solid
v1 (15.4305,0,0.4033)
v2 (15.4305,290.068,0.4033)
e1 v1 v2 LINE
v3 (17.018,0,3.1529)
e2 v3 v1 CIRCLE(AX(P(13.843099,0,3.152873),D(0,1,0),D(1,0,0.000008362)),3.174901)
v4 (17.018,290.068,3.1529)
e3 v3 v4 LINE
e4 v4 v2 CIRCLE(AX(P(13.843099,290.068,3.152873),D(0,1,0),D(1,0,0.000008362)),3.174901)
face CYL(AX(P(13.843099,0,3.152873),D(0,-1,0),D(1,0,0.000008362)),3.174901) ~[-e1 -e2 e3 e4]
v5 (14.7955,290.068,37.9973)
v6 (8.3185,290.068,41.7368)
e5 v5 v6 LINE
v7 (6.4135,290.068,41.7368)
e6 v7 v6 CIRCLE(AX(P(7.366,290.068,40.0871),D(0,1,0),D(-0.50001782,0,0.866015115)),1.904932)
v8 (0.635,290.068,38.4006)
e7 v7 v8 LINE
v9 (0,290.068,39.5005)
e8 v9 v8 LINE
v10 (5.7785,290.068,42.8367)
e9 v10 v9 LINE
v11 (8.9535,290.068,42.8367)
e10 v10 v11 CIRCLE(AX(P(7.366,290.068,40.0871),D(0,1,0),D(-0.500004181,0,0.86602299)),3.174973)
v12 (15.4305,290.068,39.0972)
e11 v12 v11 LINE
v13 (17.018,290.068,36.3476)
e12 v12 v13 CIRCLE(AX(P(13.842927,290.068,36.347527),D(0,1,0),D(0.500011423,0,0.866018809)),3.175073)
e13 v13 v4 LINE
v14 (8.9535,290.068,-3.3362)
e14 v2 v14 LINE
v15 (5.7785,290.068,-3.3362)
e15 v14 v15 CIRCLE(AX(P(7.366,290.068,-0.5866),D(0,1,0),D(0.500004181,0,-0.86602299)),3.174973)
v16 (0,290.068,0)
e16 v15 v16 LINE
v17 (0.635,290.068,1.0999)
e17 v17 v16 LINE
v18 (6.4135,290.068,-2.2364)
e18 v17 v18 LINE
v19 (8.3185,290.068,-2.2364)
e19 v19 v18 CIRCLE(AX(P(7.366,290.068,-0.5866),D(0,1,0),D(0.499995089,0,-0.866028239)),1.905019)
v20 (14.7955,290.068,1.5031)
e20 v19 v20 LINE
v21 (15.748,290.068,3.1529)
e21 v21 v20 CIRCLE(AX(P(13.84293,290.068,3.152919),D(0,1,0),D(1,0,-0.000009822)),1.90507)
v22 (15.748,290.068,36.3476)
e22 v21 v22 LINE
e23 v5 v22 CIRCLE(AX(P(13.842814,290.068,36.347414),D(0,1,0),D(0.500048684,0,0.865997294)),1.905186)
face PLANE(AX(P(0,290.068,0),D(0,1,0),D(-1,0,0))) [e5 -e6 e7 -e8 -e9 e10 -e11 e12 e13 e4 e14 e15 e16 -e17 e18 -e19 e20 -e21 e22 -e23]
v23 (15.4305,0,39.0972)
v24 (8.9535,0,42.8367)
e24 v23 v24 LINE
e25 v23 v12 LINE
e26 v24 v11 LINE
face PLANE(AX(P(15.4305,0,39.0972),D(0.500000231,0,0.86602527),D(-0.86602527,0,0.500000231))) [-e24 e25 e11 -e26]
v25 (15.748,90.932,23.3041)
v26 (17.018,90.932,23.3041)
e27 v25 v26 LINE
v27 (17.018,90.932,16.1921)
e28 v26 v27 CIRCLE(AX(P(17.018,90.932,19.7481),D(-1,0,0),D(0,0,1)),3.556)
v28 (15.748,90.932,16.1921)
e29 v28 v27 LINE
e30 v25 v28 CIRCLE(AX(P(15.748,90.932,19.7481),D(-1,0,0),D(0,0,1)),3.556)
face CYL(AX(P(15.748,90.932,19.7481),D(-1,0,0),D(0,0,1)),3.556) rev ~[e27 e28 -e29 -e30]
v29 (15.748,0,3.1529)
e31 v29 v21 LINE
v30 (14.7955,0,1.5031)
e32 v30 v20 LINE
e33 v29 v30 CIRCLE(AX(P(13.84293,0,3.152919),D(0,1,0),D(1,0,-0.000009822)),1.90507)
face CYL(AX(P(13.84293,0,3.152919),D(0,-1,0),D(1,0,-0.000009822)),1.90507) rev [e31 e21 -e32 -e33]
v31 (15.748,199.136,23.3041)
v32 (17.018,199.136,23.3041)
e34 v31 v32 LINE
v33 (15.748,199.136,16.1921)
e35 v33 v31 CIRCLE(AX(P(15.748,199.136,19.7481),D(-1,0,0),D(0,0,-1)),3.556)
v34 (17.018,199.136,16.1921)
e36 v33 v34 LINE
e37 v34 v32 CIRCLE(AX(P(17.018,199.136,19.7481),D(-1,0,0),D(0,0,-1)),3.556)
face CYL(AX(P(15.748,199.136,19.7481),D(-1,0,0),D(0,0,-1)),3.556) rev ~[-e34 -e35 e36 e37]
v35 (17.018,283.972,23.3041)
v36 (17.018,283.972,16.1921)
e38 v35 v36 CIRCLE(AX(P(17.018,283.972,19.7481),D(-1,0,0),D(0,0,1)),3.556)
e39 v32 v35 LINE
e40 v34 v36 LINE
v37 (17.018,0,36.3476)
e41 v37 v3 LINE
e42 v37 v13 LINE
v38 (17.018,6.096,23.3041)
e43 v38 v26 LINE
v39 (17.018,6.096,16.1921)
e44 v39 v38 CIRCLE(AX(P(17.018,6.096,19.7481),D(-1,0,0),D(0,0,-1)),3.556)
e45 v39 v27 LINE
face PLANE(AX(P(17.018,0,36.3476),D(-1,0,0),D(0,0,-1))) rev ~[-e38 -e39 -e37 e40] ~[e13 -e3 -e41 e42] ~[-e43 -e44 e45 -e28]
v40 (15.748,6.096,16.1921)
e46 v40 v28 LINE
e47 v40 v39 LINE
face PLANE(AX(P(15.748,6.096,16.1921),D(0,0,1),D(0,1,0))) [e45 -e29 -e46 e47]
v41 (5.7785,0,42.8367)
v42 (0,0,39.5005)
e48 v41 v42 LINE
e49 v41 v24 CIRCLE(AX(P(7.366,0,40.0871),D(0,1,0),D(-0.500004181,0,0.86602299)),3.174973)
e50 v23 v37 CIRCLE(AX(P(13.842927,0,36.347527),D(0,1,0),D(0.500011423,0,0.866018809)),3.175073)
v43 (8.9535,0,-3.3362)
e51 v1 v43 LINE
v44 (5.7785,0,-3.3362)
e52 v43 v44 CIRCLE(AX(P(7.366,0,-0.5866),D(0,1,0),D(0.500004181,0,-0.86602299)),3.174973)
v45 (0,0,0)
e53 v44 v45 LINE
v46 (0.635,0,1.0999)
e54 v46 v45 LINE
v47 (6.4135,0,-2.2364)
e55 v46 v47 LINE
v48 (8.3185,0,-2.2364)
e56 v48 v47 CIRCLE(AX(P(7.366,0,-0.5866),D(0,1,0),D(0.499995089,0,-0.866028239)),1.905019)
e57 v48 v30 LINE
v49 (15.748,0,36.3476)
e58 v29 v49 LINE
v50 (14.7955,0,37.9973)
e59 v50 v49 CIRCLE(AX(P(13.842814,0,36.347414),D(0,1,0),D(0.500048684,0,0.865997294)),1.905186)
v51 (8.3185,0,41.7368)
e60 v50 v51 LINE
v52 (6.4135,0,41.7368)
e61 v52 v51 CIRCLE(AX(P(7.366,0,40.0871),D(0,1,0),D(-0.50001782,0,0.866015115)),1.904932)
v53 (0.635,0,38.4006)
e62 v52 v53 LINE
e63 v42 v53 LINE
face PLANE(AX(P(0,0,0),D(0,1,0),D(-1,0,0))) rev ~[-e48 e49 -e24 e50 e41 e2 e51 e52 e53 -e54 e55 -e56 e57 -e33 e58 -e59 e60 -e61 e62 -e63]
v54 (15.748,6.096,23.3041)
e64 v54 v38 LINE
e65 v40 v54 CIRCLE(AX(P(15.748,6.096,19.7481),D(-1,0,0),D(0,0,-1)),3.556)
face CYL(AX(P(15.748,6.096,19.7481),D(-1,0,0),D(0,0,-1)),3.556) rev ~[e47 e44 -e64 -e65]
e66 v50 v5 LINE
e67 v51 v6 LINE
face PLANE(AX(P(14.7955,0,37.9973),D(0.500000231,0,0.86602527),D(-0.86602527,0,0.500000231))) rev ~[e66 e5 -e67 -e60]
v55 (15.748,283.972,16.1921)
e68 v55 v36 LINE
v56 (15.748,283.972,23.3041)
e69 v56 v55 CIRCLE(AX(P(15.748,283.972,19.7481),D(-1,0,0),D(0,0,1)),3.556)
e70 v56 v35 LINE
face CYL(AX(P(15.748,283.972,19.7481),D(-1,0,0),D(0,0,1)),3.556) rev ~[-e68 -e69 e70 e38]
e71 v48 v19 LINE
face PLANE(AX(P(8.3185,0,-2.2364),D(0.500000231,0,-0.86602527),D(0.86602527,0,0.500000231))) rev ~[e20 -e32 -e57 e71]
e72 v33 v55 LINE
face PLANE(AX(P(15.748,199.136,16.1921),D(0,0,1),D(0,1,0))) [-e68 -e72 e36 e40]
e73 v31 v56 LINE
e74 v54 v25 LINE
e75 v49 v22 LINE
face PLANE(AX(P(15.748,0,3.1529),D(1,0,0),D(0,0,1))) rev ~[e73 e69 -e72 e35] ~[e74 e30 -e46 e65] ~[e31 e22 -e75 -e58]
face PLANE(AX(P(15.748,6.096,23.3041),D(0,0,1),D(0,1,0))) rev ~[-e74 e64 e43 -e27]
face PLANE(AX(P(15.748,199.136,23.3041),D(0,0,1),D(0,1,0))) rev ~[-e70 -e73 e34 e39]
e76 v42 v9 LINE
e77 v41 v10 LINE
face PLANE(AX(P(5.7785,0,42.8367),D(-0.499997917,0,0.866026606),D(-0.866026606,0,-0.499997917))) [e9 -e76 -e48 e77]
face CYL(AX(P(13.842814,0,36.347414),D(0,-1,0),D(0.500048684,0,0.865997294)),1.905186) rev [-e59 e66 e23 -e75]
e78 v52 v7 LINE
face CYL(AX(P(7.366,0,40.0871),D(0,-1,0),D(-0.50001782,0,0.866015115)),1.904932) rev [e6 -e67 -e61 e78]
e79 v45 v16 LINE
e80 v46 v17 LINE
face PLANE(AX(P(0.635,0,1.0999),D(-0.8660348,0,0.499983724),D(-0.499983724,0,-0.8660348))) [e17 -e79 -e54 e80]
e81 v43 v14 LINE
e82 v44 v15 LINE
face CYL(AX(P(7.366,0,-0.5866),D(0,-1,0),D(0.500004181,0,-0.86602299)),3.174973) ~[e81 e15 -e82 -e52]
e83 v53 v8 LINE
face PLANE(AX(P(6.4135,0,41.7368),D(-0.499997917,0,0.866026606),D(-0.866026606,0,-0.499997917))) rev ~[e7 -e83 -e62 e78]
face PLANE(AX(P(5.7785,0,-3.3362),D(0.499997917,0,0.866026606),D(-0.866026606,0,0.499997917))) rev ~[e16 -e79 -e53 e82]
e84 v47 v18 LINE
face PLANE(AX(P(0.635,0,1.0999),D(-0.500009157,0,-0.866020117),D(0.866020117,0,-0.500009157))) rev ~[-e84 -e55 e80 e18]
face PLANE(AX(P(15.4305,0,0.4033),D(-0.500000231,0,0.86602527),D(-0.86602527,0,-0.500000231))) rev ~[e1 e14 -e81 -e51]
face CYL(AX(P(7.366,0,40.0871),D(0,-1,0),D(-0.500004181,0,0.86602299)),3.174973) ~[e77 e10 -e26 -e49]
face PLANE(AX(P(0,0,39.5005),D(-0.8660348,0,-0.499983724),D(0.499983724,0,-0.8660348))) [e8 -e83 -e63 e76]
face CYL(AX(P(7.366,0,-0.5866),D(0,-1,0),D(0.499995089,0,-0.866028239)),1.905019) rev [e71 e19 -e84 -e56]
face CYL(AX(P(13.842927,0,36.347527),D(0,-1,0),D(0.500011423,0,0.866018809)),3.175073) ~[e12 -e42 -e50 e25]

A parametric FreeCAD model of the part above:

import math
import FreeCAD as App
import Part
import Sketcher
Q = App.Units.Quantity

doc = App.newDocument("Part")
body = doc.addObject("PartDesign::Body", "Body")

# Sketch on XZ plane
sketch1 = doc.addObject("Sketcher::SketchObject", "Sketch")
body.addObject(sketch1)
sketch1.AttachmentSupport = (doc.XZ_Plane, [""])
sketch1.MapMode = "FlatFace"
sketch1.addGeometry(Part.ArcOfCircle(Part.Circle(App.Vector(13.8, 36.3, 0), App.Vector(0, 0, 1), 3.2), math.radians(0), math.radians(60)), False)
sketch1.addGeometry(Part.LineSegment(App.Vector(17, 36.3, 0), App.Vector(17, 3.2, 0)), False)
sketch1.addGeometry(Part.ArcOfCircle(Part.Circle(App.Vector(13.8, 3.2, 0), App.Vector(0, 0, 1), 3.2), math.radians(-60), math.radians(0)), False)
sketch1.addGeometry(Part.LineSegment(App.Vector(15.4, 0.4, 0), App.Vector(9, -3.3, 0)), False)
sketch1.addGeometry(Part.ArcOfCircle(Part.Circle(App.Vector(7.4, -0.6, 0), App.Vector(0, 0, 1), 3.2), math.radians(-120), math.radians(-60)), False)
sketch1.addGeometry(Part.LineSegment(App.Vector(5.8, -3.3, 0), App.Vector(0, 0, 0)), False)
sketch1.addGeometry(Part.LineSegment(App.Vector(0, 0, 0), App.Vector(0.6, 1.1, 0)), False)
sketch1.addGeometry(Part.LineSegment(App.Vector(0.6, 1.1, 0), App.Vector(6.4, -2.2, 0)), False)
sketch1.addGeometry(Part.ArcOfCircle(Part.Circle(App.Vector(7.4, -0.6, 0), App.Vector(0, 0, 1), 1.9), math.radians(-120), math.radians(-60)), False)
sketch1.addGeometry(Part.LineSegment(App.Vector(8.3, -2.2, 0), App.Vector(14.8, 1.5, 0)), False)
sketch1.addGeometry(Part.ArcOfCircle(Part.Circle(App.Vector(13.8, 3.2, 0), App.Vector(0, 0, 1), 1.9), math.radians(-60), math.radians(0)), False)
sketch1.addGeometry(Part.LineSegment(App.Vector(15.7, 3.2, 0), App.Vector(15.7, 36.3, 0)), False)
sketch1.addGeometry(Part.ArcOfCircle(Part.Circle(App.Vector(13.8, 36.3, 0), App.Vector(0, 0, 1), 1.9), math.radians(0), math.radians(60)), False)
sketch1.addGeometry(Part.LineSegment(App.Vector(14.8, 38, 0), App.Vector(8.3, 41.7, 0)), False)
sketch1.addGeometry(Part.ArcOfCircle(Part.Circle(App.Vector(7.4, 40.1, 0), App.Vector(0, 0, 1), 1.9), math.radians(60), math.radians(120)), False)
sketch1.addGeometry(Part.LineSegment(App.Vector(6.4, 41.7, 0), App.Vector(0.6, 38.4, 0)), False)
sketch1.addGeometry(Part.LineSegment(App.Vector(0.6, 38.4, 0), App.Vector(0, 39.5, 0)), False)
sketch1.addGeometry(Part.LineSegment(App.Vector(0, 39.5, 0), App.Vector(5.8, 42.8, 0)), False)
sketch1.addGeometry(Part.ArcOfCircle(Part.Circle(App.Vector(7.4, 40.1, 0), App.Vector(0, 0, 1), 3.2), math.radians(60), math.radians(120)), False)
sketch1.addGeometry(Part.LineSegment(App.Vector(9, 42.8, 0), App.Vector(15.4, 39.1, 0)), False)
sketch1.addConstraint(Sketcher.Constraint("Tangent", 0, 1, 1, 1))
sketch1.addConstraint(Sketcher.Constraint("Tangent", 1, 2, 2, 2))
sketch1.addConstraint(Sketcher.Constraint("Tangent", 2, 1, 3, 1))
sketch1.addConstraint(Sketcher.Constraint("Tangent", 3, 2, 4, 2))
sketch1.addConstraint(Sketcher.Constraint("Tangent", 4, 1, 5, 1))
sketch1.addConstraint(Sketcher.Constraint("Coincident", 5, 2, 6, 1))
sketch1.addConstraint(Sketcher.Constraint("Coincident", 6, 2, 7, 1))
sketch1.addConstraint(Sketcher.Constraint("Tangent", 7, 2, 8, 1))
sketch1.addConstraint(Sketcher.Constraint("Tangent", 8, 2, 9, 1))
sketch1.addConstraint(Sketcher.Constraint("Tangent", 9, 2, 10, 1))
sketch1.addConstraint(Sketcher.Constraint("Tangent", 10, 2, 11, 1))
sketch1.addConstraint(Sketcher.Constraint("Tangent", 11, 2, 12, 1))
sketch1.addConstraint(Sketcher.Constraint("Tangent", 12, 2, 13, 1))
sketch1.addConstraint(Sketcher.Constraint("Tangent", 13, 2, 14, 1))
sketch1.addConstraint(Sketcher.Constraint("Tangent", 14, 2, 15, 1))
sketch1.addConstraint(Sketcher.Constraint("Coincident", 15, 2, 16, 1))
sketch1.addConstraint(Sketcher.Constraint("Coincident", 16, 2, 17, 1))
sketch1.addConstraint(Sketcher.Constraint("Tangent", 17, 2, 18, 2))
sketch1.addConstraint(Sketcher.Constraint("Tangent", 18, 1, 19, 1))
sketch1.addConstraint(Sketcher.Constraint("Tangent", 19, 2, 0, 2))
sketch1.addConstraint(Sketcher.Constraint("Vertical", 1))
sketch1.addConstraint(Sketcher.Constraint("Vertical", 11))
sketch1.addConstraint(Sketcher.Constraint("Coincident", 5, 2, -1, 1))
sketch1.addConstraint(Sketcher.Constraint("Coincident", 8, 3, 4, 3))
sketch1.addConstraint(Sketcher.Constraint("Coincident", 10, 3, 2, 3))
sketch1.addConstraint(Sketcher.Constraint("Coincident", 12, 3, 0, 3))
sketch1.addConstraint(Sketcher.Constraint("Coincident", 18, 3, 14, 3))
sketch1.addConstraint(Sketcher.Constraint("Equal", 0, 2))
sketch1.addConstraint(Sketcher.Constraint("Equal", 2, 4))
sketch1.addConstraint(Sketcher.Constraint("Equal", 8, 10))
sketch1.addConstraint(Sketcher.Constraint("Equal", 12, 14))
sketch1.addConstraint(Sketcher.Constraint("Equal", 4, 18))
sketch1.addConstraint(Sketcher.Constraint("PointOnObject", 16, 2, -2))
sketch1.addConstraint(Sketcher.Constraint("Perpendicular", 5, 6))
sketch1.addConstraint(Sketcher.Constraint("Perpendicular", 6, 7))
sketch1.addConstraint(Sketcher.Constraint("Parallel", 7, 13))
sketch1.addConstraint(Sketcher.Constraint("Parallel", 9, 15))
sketch1.addConstraint(Sketcher.Constraint("Perpendicular", 15, 16))
sketch1.addConstraint(Sketcher.Constraint("Perpendicular", 16, 17))
sketch1.addConstraint(Sketcher.Constraint("Horizontal", 3, 2, 4, 1))
sketch1.addConstraint(Sketcher.Constraint("Vertical", 8, 3, 14, 3))
sketch1.addConstraint(Sketcher.Constraint("Radius", 0, Q("0.125 in")))
sketch1.addConstraint(Sketcher.Constraint("Distance", 6, Q("0.05 in")))
sketch1.addConstraint(Sketcher.Constraint("DistanceX", -1, 1, 0, 1, Q("0.67 in")))
sketch1.addConstraint(Sketcher.Constraint("DistanceX", 14, 3, 0, 1, Q("0.38 in")))
sketch1.addConstraint(Sketcher.Constraint("Angle", 3, Q("-150 deg")))
sketch1.addConstraint(Sketcher.Constraint("DistanceY", -1, 1, 0, 3, Q("1.431 in")))
pad1 = doc.addObject("PartDesign::Pad", "Pad")
body.addObject(pad1)
pad1.Profile = sketch1
pad1.Length = Q("11.42 in")
pad1.Reversed = True

# Sketch on YZ plane
sketch2 = doc.addObject("Sketcher::SketchObject", "Sketch001")
body.addObject(sketch2)
sketch2.AttachmentSupport = (doc.YZ_Plane, [""])
sketch2.MapMode = "FlatFace"
sketch2.AttachmentOffset = App.Placement(App.Vector(0, 0, 0.62 * 25.4), App.Rotation())
sketch2.addGeometry(Part.LineSegment(App.Vector(90.9, 16.2, 0), App.Vector(6.1, 16.2, 0)), False)
sketch2.addGeometry(Part.ArcOfCircle(Part.Circle(App.Vector(6.1, 19.7, 0), App.Vector(0, 0, 1), 3.6), math.radians(90), math.radians(270)), False)
sketch2.addGeometry(Part.LineSegment(App.Vector(6.1, 23.3, 0), App.Vector(90.9, 23.3, 0)), False)
sketch2.addGeometry(Part.ArcOfCircle(Part.Circle(App.Vector(90.9, 19.7, 0), App.Vector(0, 0, 1), 3.6), math.radians(-90), math.radians(90)), False)
sketch2.addGeometry(Part.LineSegment(App.Vector(284, 16.2, 0), App.Vector(199.1, 16.2, 0)), False)
sketch2.addGeometry(Part.ArcOfCircle(Part.Circle(App.Vector(199.1, 19.7, 0), App.Vector(0, 0, 1), 3.6), math.radians(90), math.radians(270)), False)
sketch2.addGeometry(Part.LineSegment(App.Vector(199.1, 23.3, 0), App.Vector(284, 23.3, 0)), False)
sketch2.addGeometry(Part.ArcOfCircle(Part.Circle(App.Vector(284, 19.7, 0), App.Vector(0, 0, 1), 3.6), math.radians(-90), math.radians(90)), False)
sketch2.addConstraint(Sketcher.Constraint("Tangent", 0, 2, 1, 2))
sketch2.addConstraint(Sketcher.Constraint("Tangent", 1, 1, 2, 1))
sketch2.addConstraint(Sketcher.Constraint("Tangent", 2, 2, 3, 2))
sketch2.addConstraint(Sketcher.Constraint("Tangent", 3, 1, 0, 1))
sketch2.addConstraint(Sketcher.Constraint("Tangent", 4, 2, 5, 2))
sketch2.addConstraint(Sketcher.Constraint("Tangent", 5, 1, 6, 1))
sketch2.addConstraint(Sketcher.Constraint("Tangent", 6, 2, 7, 2))
sketch2.addConstraint(Sketcher.Constraint("Tangent", 7, 1, 4, 1))
sketch2.addConstraint(Sketcher.Constraint("Horizontal", 0))
sketch2.addConstraint(Sketcher.Constraint("Horizontal", 2))
sketch2.addConstraint(Sketcher.Constraint("Horizontal", 4))
sketch2.addConstraint(Sketcher.Constraint("Horizontal", 6))
sketch2.addConstraint(Sketcher.Constraint("Equal", 3, 5))
sketch2.addConstraint(Sketcher.Constraint("Horizontal", 3, 3, 5, 3))
sketch2.addConstraint(Sketcher.Constraint("Equal", 2, 4))
sketch2.addConstraint(Sketcher.Constraint("Radius", 1, Q("0.14 in")))
sketch2.addConstraint(Sketcher.Constraint("DistanceX", 0, 2, 0, 1, Q("3.34 in")))
sketch2.addConstraint(Sketcher.Constraint("DistanceX", 1, 3, 5, 3, Q("7.6 in")))
sketch2.addConstraint(Sketcher.Constraint("DistanceX", -1, 1, 1, 3, Q("0.24 in")))
sketch2.addConstraint(Sketcher.Constraint("DistanceY", -1, 1, 1, 3, 19.748))
pocket1 = doc.addObject("PartDesign::Pocket", "Pocket")
body.addObject(pocket1)
pocket1.Profile = sketch2
pocket1.Type = "ThroughAll"
pocket1.Reversed = True

doc.recompute()
